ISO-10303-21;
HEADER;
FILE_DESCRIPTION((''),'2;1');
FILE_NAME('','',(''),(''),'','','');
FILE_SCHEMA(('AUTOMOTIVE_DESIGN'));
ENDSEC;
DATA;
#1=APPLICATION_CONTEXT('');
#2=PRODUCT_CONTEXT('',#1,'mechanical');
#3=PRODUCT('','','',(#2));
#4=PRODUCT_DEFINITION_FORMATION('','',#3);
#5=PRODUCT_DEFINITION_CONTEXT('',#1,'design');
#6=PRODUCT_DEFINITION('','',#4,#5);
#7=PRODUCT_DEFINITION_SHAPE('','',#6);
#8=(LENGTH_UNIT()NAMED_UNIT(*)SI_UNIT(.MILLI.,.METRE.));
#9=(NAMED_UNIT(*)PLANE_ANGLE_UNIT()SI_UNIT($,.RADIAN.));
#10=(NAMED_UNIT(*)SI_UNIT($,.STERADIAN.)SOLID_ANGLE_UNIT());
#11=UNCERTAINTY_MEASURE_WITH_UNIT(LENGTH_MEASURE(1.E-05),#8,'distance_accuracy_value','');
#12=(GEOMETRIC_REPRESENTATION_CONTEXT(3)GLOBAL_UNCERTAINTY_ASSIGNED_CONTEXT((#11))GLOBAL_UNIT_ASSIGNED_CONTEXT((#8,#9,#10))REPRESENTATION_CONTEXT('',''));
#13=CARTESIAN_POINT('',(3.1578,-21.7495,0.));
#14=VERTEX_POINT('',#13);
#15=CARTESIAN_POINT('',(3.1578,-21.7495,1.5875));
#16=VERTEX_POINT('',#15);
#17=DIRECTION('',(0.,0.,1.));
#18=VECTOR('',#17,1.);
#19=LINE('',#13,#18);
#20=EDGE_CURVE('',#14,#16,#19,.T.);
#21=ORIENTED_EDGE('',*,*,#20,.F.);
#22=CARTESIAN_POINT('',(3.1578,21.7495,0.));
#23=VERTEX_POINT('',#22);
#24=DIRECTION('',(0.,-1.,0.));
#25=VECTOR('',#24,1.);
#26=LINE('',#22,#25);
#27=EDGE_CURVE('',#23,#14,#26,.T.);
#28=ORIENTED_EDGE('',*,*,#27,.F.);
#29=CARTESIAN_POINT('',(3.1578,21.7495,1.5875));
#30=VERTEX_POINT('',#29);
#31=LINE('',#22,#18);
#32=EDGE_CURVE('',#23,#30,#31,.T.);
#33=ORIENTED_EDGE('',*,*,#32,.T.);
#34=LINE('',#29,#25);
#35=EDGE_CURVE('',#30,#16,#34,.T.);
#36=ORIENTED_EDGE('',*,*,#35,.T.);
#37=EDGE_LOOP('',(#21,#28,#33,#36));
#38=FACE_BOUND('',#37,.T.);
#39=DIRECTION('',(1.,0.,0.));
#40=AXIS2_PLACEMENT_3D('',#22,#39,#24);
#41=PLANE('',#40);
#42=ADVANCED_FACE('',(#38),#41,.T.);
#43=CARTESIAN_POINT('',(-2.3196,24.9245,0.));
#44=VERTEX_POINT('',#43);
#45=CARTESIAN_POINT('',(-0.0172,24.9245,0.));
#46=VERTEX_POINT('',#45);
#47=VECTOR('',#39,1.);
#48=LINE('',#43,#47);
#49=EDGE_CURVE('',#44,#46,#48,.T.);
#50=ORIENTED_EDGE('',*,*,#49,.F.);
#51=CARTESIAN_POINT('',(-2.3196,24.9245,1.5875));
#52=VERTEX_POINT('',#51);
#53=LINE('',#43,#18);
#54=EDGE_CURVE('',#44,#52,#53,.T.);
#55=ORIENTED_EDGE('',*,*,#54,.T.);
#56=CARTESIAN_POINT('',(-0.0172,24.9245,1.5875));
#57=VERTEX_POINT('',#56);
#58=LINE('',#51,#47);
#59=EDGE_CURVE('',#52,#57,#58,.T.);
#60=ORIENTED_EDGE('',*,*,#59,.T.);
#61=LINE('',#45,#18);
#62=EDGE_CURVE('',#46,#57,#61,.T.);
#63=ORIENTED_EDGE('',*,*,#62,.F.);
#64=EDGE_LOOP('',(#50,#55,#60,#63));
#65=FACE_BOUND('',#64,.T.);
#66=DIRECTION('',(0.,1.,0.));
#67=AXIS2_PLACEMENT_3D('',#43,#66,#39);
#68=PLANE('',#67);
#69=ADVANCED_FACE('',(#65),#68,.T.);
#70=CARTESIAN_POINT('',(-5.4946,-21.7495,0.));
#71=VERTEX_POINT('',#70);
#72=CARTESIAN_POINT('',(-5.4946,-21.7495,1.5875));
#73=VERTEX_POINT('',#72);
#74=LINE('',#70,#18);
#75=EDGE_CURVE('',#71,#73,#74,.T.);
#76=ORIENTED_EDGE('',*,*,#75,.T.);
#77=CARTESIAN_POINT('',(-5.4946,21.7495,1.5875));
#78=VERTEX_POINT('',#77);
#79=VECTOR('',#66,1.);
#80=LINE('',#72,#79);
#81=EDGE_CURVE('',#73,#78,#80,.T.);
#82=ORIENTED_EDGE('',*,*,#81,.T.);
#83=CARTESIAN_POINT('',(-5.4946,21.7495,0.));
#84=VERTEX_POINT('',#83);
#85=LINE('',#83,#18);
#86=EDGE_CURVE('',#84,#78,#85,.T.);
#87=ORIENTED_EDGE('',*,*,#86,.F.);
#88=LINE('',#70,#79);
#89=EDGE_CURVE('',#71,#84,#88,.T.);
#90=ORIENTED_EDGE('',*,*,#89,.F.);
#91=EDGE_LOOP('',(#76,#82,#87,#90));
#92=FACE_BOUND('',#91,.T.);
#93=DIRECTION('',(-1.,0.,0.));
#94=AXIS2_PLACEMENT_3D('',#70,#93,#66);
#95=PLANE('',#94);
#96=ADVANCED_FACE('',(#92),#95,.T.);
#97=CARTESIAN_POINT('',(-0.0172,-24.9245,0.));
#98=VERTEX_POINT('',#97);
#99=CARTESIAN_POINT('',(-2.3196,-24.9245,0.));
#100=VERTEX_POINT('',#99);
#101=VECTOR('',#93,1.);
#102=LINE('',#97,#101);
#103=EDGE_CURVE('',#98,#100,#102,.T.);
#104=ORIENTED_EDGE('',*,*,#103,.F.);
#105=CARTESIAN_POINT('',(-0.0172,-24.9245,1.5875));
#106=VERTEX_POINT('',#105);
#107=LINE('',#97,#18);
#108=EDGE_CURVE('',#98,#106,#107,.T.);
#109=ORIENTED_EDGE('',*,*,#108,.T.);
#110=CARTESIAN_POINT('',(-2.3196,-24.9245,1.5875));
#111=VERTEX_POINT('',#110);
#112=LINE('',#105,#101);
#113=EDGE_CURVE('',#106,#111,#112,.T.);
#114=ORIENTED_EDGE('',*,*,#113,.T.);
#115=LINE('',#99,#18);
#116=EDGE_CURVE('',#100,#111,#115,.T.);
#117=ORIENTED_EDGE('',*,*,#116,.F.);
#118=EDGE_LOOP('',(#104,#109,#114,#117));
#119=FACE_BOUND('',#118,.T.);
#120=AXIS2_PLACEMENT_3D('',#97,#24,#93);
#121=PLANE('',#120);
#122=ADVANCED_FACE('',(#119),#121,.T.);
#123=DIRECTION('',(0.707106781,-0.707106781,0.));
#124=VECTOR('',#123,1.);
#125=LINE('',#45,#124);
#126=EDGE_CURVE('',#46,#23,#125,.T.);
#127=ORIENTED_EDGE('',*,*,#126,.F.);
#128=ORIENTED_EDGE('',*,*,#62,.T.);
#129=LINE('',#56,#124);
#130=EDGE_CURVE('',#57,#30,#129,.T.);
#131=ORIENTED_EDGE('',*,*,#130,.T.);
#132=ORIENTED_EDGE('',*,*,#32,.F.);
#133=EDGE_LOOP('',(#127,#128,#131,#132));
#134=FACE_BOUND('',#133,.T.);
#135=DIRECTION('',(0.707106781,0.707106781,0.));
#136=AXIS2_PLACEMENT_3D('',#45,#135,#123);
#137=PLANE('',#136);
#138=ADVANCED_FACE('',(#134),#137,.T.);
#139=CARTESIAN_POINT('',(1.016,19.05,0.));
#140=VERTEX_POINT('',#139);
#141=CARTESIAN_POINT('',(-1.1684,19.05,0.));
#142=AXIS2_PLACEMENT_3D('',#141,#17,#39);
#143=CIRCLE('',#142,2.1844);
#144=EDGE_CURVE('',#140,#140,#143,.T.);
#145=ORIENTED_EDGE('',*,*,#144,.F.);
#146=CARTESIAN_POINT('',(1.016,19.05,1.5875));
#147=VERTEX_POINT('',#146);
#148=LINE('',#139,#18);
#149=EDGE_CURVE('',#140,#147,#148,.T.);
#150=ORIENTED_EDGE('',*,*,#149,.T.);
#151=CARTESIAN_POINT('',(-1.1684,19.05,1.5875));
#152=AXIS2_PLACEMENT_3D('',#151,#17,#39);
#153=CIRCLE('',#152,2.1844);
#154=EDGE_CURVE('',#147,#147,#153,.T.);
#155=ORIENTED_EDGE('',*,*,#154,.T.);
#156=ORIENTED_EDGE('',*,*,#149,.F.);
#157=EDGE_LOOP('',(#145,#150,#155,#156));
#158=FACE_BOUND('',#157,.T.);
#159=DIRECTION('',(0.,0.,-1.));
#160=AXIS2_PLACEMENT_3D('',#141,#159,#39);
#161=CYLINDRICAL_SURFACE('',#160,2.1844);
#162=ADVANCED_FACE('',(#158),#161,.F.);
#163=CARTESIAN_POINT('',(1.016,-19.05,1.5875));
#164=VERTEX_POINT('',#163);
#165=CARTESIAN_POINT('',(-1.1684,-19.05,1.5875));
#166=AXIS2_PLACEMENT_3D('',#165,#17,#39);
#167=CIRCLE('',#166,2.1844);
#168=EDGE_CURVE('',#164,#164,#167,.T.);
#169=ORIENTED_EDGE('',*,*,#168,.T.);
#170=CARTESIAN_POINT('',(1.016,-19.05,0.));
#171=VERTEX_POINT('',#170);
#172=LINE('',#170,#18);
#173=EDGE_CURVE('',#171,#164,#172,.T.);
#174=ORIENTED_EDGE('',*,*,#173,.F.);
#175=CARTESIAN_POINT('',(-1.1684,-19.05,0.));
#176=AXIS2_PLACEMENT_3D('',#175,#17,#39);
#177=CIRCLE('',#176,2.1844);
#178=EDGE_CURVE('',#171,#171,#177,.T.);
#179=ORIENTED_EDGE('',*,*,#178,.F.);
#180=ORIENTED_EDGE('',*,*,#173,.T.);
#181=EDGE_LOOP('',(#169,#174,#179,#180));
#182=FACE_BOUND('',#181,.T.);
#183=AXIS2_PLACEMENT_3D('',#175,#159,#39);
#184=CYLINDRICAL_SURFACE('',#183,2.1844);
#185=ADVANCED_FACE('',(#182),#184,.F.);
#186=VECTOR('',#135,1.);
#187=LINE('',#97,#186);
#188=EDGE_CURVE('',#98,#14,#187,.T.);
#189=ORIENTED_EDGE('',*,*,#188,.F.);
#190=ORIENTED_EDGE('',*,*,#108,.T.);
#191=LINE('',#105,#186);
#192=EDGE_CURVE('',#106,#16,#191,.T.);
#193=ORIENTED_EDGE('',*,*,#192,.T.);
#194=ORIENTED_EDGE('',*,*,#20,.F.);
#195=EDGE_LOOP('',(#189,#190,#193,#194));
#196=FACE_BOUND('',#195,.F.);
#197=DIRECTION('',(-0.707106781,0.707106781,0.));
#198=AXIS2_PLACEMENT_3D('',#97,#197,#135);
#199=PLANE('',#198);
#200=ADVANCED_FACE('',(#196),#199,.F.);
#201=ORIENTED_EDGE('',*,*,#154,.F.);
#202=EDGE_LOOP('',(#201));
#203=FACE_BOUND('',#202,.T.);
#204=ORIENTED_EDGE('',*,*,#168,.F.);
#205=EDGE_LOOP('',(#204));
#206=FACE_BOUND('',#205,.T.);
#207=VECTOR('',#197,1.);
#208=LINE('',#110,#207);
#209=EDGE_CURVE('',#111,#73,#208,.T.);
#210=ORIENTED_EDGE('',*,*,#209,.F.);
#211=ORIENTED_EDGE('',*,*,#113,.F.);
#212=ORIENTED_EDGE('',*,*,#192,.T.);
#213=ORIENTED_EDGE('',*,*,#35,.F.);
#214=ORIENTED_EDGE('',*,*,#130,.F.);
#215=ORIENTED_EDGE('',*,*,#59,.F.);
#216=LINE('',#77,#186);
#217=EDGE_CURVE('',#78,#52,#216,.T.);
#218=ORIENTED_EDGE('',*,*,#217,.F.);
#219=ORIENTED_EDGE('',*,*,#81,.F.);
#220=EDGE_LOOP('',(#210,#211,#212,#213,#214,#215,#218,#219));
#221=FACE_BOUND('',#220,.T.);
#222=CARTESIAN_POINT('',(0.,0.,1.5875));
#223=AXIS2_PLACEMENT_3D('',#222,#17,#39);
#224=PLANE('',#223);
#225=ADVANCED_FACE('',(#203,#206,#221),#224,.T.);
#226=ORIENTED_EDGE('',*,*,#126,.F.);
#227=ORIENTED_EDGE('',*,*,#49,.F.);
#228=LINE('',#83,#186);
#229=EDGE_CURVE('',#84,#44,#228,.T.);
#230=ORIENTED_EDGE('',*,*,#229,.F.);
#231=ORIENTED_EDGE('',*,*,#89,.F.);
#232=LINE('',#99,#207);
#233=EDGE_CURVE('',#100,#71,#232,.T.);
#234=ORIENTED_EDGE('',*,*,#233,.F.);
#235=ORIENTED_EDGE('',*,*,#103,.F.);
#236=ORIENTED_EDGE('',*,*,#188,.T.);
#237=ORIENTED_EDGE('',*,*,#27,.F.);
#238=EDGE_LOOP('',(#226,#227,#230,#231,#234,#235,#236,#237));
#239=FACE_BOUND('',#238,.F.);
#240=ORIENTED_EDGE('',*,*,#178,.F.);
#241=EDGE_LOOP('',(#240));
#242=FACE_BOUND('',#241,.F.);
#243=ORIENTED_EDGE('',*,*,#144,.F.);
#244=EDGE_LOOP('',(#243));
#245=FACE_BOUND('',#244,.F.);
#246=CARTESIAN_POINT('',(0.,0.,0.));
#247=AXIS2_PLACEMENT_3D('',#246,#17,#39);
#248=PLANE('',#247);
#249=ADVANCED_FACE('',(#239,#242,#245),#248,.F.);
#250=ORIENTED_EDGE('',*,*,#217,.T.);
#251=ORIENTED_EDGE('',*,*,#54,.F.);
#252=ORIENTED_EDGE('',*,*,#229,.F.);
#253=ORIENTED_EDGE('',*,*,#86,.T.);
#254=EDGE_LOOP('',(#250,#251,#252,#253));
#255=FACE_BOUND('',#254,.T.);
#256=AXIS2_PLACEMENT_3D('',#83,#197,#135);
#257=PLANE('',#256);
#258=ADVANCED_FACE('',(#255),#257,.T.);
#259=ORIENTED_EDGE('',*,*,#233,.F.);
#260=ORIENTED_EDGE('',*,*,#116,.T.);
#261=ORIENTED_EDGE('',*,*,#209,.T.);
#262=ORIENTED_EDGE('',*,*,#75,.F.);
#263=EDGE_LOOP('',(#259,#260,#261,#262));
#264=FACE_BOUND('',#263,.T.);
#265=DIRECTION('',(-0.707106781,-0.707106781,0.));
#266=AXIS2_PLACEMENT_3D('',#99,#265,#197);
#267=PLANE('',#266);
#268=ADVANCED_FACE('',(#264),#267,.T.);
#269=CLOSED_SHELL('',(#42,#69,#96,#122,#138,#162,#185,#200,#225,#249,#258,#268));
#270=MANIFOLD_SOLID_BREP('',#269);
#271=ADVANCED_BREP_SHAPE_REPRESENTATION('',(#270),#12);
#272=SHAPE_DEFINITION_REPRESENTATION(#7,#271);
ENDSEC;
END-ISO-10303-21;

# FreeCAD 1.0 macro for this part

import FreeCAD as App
import Part
import Sketcher

V = App.Vector
Q = App.Units.Quantity


def add_polygon(sketch, points):
    """Adds a closed chain of lines whose ends are joined by coincident constraints."""
    first, n = sketch.GeometryCount, len(points)
    for a, b in zip(points, points[1:] + points[:1]):
        sketch.addGeometry(Part.LineSegment(App.Vector(*a, 0), App.Vector(*b, 0)), False)
    for i in range(n):
        sketch.addConstraint(Sketcher.Constraint("Coincident", first + i, 2, first + (i + 1) % n, 1))

doc = App.newDocument("Part")
body = doc.addObject("PartDesign::Body", "Body")

sketch1 = doc.addObject("Sketcher::SketchObject", "Sketch")
body.addObject(sketch1)
sketch1.AttachmentSupport = (doc.XY_Plane, [""])
sketch1.MapMode = "FlatFace"
add_polygon(sketch1, [(-2.3196, -24.9245), (-0.0172, -24.9245), (3.1578, -21.7495), (3.1578, 21.7495), (-0.0172, 24.9245), (-2.3196, 24.9245), (-5.4946, 21.7495), (-5.4946, -21.7495)])
sketch1.addGeometry(Part.Circle(V(-1.1684, -19.05, 0), V(0, 0, 1), 2.1844), False)
sketch1.addGeometry(Part.Circle(V(-1.1684, 19.05, 0), V(0, 0, 1), 2.1844), False)
sketch1.addConstraint(Sketcher.Constraint("Horizontal", 0))
sketch1.addConstraint(Sketcher.Constraint("Vertical", 2))
sketch1.addConstraint(Sketcher.Constraint("Horizontal", 4))
sketch1.addConstraint(Sketcher.Constraint("Vertical", 6))
sketch1.addConstraint(Sketcher.Constraint("Equal", 8, 9))
sketch1.addConstraint(Sketcher.Constraint("Symmetric", 8, 3, 9, 3, -1))
sketch1.addConstraint(Sketcher.Constraint("Symmetric", 0, 2, 3, 2, -1))
sketch1.addConstraint(Sketcher.Constraint("Perpendicular", 1, 3))
sketch1.addConstraint(Sketcher.Constraint("Perpendicular", 3, 5))
sketch1.addConstraint(Sketcher.Constraint("Perpendicular", 5, 7))
sketch1.addConstraint(Sketcher.Constraint("Horizontal", 2, 2, 5, 2))
sketch1.addConstraint(Sketcher.Constraint("Horizontal", 1, 2, 6, 2))
sketch1.addConstraint(Sketcher.Constraint("Vertical", 4, 2, 7, 2))
sketch1.addConstraint(Sketcher.Constraint("Diameter", 8, Q("0.172 in")))
sketch1.addConstraint(Sketcher.Constraint("DistanceX", 0, 2, 1, 2, Q("0.125 in")))
sketch1.addConstraint(Sketcher.Constraint("DistanceY", 8, 3, 9, 3, Q("1.5 in")))
sketch1.addConstraint(Sketcher.Constraint("DistanceX", 8, 3, -1, 1, Q("0.046 in")))
sketch1.addConstraint(Sketcher.Constraint("DistanceX", 0, 1, 0, 2, 2.3024))
sketch1.addConstraint(Sketcher.Constraint("DistanceY", 2, 1, 2, 2, 43.499))
sketch1.addConstraint(Sketcher.Constraint("DistanceX", 0, 2, -1, 1, 0.0172))
pad1 = doc.addObject("PartDesign::Pad", "Pad")
body.addObject(pad1)
pad1.Profile = sketch1
pad1.Length = Q("0.0625 in")

doc.recompute()
